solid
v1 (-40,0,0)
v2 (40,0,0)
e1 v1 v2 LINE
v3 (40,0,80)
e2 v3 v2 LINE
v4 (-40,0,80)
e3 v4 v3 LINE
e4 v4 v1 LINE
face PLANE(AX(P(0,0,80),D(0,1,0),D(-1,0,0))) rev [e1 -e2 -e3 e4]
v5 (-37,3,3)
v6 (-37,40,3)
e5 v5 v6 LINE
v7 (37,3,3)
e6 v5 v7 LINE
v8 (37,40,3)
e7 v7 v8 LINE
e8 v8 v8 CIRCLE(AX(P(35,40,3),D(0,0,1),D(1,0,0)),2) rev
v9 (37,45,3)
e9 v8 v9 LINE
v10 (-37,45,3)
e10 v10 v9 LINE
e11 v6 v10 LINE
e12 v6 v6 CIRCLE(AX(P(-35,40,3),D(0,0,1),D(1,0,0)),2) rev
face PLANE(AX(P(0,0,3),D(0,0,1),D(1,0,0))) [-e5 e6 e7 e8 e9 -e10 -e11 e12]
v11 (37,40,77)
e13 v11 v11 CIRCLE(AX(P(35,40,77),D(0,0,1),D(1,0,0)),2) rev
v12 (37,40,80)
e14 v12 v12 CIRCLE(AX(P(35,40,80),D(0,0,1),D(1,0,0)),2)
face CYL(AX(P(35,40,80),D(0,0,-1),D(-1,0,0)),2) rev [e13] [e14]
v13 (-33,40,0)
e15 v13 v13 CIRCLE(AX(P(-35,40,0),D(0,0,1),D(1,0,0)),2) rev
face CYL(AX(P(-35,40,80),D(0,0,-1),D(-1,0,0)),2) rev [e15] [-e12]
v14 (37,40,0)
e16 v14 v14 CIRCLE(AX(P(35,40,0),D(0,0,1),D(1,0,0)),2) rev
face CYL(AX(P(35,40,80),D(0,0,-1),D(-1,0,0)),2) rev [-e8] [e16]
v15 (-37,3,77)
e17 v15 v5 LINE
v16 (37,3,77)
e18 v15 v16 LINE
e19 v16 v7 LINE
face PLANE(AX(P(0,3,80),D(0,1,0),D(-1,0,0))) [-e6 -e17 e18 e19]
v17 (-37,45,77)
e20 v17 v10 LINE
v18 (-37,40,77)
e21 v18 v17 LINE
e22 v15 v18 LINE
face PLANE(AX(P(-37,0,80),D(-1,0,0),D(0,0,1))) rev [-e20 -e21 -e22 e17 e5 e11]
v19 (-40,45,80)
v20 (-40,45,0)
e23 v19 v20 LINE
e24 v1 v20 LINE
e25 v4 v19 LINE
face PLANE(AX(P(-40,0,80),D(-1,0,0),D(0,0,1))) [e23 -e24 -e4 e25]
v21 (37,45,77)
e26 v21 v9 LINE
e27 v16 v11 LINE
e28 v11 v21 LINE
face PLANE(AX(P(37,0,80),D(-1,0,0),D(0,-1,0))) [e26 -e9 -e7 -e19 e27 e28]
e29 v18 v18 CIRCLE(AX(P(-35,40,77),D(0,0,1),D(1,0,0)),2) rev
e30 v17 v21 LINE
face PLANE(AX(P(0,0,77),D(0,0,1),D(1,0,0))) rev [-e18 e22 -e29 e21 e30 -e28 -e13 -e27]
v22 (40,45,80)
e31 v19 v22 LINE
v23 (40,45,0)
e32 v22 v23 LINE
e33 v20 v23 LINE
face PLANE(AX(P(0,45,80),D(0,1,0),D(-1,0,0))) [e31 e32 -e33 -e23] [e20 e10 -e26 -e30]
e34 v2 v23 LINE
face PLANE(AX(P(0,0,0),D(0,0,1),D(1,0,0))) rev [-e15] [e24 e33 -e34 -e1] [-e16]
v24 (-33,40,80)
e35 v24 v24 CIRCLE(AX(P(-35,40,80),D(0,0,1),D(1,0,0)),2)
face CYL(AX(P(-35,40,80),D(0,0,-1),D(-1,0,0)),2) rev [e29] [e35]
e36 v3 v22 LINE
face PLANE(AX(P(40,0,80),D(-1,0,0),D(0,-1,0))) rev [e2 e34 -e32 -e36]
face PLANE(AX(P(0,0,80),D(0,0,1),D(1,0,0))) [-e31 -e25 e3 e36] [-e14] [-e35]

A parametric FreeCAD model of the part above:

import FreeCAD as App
import Part
import Sketcher
from FreeCAD import Vector
Q = App.Units.Quantity


def faces_at(feature, points):
    """Names of the faces that lie closest to the given points."""
    faces = feature.Shape.Faces
    near = lambda p: min(range(len(faces)), key=lambda i: faces[i].distToShape(Part.Vertex(*p))[0])
    return sorted({f"Face{near(p) + 1}" for p in points})


def add_polygon(sketch, points):
    """Adds a closed chain of lines whose ends are joined by coincident constraints."""
    first, n = sketch.GeometryCount, len(points)
    for a, b in zip(points, points[1:] + points[:1]):
        sketch.addGeometry(Part.LineSegment(App.Vector(*a, 0), App.Vector(*b, 0)), False)
    for i in range(n):
        sketch.addConstraint(Sketcher.Constraint("Coincident", first + i, 2, first + (i + 1) % n, 1))

doc = App.newDocument("Part")
body = doc.addObject("PartDesign::Body", "Body")

sketch1 = body.newObject("Sketcher::SketchObject", "Sketch")
sketch1.AttachmentSupport = (doc.getObject("XY_Plane"), [""])
sketch1.MapMode = "FlatFace"
add_polygon(sketch1, [(-40, 45), (-40, 0), (40, 0), (40, 45)])
sketch1.addConstraint([
    Sketcher.Constraint("Vertical", 0),
    Sketcher.Constraint("Horizontal", 1),
    Sketcher.Constraint("Vertical", 2),
    Sketcher.Constraint("Horizontal", 3),
    Sketcher.Constraint("Symmetric", 0, 2, 1, 2, -1, 1),
    Sketcher.Constraint("DistanceX", 1, 1, 1, 2, Q("80 mm")),
    Sketcher.Constraint("DistanceY", 0, 2, 0, 1, Q("45 mm")),
])
pad1 = body.newObject("PartDesign::Pad", "Pad")
pad1.Profile = sketch1
pad1.Length = 80
doc.recompute()

thickness = body.newObject("PartDesign::Thickness", "Thickness")
thickness.Base = (pad1, faces_at(pad1, [(0, 45, 40)]))
thickness.Value = 3
thickness.Reversed = True
thickness.Join = "Intersection"

sketch2 = body.newObject("Sketcher::SketchObject", "Sketch001")
sketch2.AttachmentSupport = (doc.getObject("XY_Plane"), [""])
sketch2.MapMode = "FlatFace"
sketch2.addGeometry([
    Part.Circle(Vector(-35, 40, 0), Vector(0, 0, 1), 2),
    Part.Circle(Vector(35, 40, 0), Vector(0, 0, 1), 2),
], False)
sketch2.addConstraint([
    Sketcher.Constraint("Equal", 0, 1),
    Sketcher.Constraint("Symmetric", 0, 3, 1, 3, -2),
    Sketcher.Constraint("Diameter", 0, Q("4 mm")),
    Sketcher.Constraint("DistanceX", 0, 3, -1, 1, Q("35 mm")),
    Sketcher.Constraint("DistanceY", -1, 1, 0, 3, Q("40 mm")),
])
pocket1 = body.newObject("PartDesign::Pocket", "Pocket")
pocket1.Profile = sketch2
pocket1.Type = "ThroughAll"
pocket1.Midplane = True

doc.recompute()
